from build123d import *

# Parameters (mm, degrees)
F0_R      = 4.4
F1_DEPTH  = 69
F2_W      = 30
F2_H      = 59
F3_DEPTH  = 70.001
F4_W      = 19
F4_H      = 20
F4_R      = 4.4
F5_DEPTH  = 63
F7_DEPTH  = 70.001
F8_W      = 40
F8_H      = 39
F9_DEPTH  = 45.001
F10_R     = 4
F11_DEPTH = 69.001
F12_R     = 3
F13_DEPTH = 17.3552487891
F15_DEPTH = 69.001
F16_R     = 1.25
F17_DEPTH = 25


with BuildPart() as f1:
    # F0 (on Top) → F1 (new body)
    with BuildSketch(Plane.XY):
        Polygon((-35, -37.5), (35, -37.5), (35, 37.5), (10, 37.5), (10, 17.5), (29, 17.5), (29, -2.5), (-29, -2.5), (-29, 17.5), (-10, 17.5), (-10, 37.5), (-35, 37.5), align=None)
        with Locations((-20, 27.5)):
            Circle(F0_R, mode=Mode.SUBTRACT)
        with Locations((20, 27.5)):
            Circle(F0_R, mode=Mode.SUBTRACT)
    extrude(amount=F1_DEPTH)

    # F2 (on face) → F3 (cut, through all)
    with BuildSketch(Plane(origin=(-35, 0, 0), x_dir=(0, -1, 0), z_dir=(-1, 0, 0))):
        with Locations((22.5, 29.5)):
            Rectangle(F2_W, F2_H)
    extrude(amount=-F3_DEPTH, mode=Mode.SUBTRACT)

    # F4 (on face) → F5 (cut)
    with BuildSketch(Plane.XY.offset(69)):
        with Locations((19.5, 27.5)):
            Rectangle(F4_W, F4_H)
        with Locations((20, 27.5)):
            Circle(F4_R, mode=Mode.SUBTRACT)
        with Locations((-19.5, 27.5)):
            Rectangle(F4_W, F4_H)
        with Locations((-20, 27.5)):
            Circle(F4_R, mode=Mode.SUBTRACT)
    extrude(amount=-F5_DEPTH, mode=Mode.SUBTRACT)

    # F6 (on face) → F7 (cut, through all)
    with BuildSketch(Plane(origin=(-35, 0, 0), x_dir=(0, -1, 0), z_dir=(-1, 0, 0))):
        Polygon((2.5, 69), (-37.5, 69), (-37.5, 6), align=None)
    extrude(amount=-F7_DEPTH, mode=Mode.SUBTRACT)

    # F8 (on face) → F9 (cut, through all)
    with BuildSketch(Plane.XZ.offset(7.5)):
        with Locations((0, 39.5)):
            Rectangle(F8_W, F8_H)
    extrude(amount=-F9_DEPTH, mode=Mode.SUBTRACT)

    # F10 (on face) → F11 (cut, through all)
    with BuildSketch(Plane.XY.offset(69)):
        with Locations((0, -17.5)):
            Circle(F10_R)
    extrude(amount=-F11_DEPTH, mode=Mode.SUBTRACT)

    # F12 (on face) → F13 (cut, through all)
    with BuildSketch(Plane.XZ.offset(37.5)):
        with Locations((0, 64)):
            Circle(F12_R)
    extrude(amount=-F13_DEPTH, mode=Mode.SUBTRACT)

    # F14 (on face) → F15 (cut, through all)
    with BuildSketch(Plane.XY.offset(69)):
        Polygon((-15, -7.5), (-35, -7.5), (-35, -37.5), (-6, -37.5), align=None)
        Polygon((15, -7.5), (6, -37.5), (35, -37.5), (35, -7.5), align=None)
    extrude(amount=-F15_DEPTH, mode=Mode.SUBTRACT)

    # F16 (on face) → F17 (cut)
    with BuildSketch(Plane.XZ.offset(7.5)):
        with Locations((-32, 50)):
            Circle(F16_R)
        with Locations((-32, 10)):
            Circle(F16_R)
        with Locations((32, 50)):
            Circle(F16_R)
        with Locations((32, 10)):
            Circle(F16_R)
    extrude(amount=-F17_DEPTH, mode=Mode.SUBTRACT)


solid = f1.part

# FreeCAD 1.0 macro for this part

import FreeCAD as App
import Part
import Sketcher


def add_polygon(sketch, points):
    """Adds a closed chain of lines whose ends are joined by coincident constraints."""
    first, n = sketch.GeometryCount, len(points)
    for a, b in zip(points, points[1:] + points[:1]):
        sketch.addGeometry(Part.LineSegment(App.Vector(*a, 0), App.Vector(*b, 0)), False)
    for i in range(n):
        sketch.addConstraint(Sketcher.Constraint("Coincident", first + i, 2, first + (i + 1) % n, 1))

doc = App.newDocument("Part")
body = doc.addObject("PartDesign::Body", "Body")

# Sketch on XY plane
sketch1 = doc.addObject("Sketcher::SketchObject", "Sketch")
body.addObject(sketch1)
sketch1.AttachmentSupport = (doc.XY_Plane, [""])
sketch1.MapMode = "FlatFace"
add_polygon(sketch1, [(-35, -37.5), (35, -37.5), (35, 37.5), (10, 37.5), (10, 17.5), (29, 17.5), (29, -2.5), (-29, -2.5), (-29, 17.5), (-10, 17.5), (-10, 37.5), (-35, 37.5)])  # lines 0-11
sketch1.addGeometry(Part.Circle(App.Vector(-20, 27.5, 0), App.Vector(0, 0, 1), 4.4), False)  # 12
sketch1.addGeometry(Part.Circle(App.Vector(20, 27.5, 0), App.Vector(0, 0, 1), 4.4), False)  # 13
sketch1.addConstraint([
    Sketcher.Constraint("Horizontal", 0),
    Sketcher.Constraint("Vertical", 1),
    Sketcher.Constraint("Horizontal", 2),
    Sketcher.Constraint("Vertical", 3),
    Sketcher.Constraint("Horizontal", 4),
    Sketcher.Constraint("Vertical", 5),
    Sketcher.Constraint("Horizontal", 6),
    Sketcher.Constraint("Vertical", 7),
    Sketcher.Constraint("Horizontal", 8),
    Sketcher.Constraint("Vertical", 9),
    Sketcher.Constraint("Horizontal", 10),
    Sketcher.Constraint("Vertical", 11),
    Sketcher.Constraint("Equal", 12, 13),
    Sketcher.Constraint("Symmetric", 0, 2, 10, 2, -1, 1),
    Sketcher.Constraint("Symmetric", 12, 3, 13, 3, -2),
    Sketcher.Constraint("Symmetric", 4, 2, 7, 2, -2),
    Sketcher.Constraint("Symmetric", 2, 2, 9, 2, -2),
    Sketcher.Constraint("Equal", 3, 5),
    Sketcher.Constraint("Diameter", 12, 8.8),
    Sketcher.Constraint("DistanceX", 0, 1, 0, 2, 70.0),
    Sketcher.Constraint("DistanceX", 2, 2, 2, 1, 25.0),
    Sketcher.Constraint("DistanceX", 4, 1, 4, 2, 19.0),
    Sketcher.Constraint("DistanceY", 1, 1, 1, 2, 75.0),
    Sketcher.Constraint("DistanceY", 3, 2, 3, 1, 20.0),
    Sketcher.Constraint("DistanceX", 12, 3, -1, 1, 20.0),
    Sketcher.Constraint("DistanceY", 0, 2, 13, 3, 65.0),
])
pad1 = doc.addObject("PartDesign::Pad", "Pad")
body.addObject(pad1)
pad1.Profile = sketch1
pad1.Length = 69

# Sketch on YZ plane
sketch2 = doc.addObject("Sketcher::SketchObject", "Sketch001")
body.addObject(sketch2)
sketch2.AttachmentSupport = (doc.YZ_Plane, [""])
sketch2.MapMode = "FlatFace"
sketch2.AttachmentOffset = App.Placement(App.Vector(0, 0, -35), App.Rotation())
add_polygon(sketch2, [(-8, 59), (-8, 0), (-38, 0), (-38, 59)])  # lines 0-3
sketch2.addConstraint([
    Sketcher.Constraint("Vertical", 0),
    Sketcher.Constraint("Horizontal", 1),
    Sketcher.Constraint("Vertical", 2),
    Sketcher.Constraint("Horizontal", 3),
    Sketcher.Constraint("PointOnObject", 0, 2, -1),
    Sketcher.Constraint("DistanceX", 1, 2, 1, 1, 30.0),
    Sketcher.Constraint("DistanceY", 0, 2, 0, 1, 59.0),
    Sketcher.Constraint("DistanceX", 0, 2, -1, 1, 7.5),
])
pocket1 = doc.addObject("PartDesign::Pocket", "Pocket")
body.addObject(pocket1)
pocket1.Profile = sketch2
pocket1.Type = "ThroughAll"
pocket1.Reversed = True

# Sketch on XY plane
sketch3 = doc.addObject("Sketcher::SketchObject", "Sketch002")
body.addObject(sketch3)
sketch3.AttachmentSupport = (doc.XY_Plane, [""])
sketch3.MapMode = "FlatFace"
sketch3.AttachmentOffset = App.Placement(App.Vector(0, 0, 69), App.Rotation())
add_polygon(sketch3, [(10, 37.5), (10, 17.5), (29, 17.5), (29, 37.5)])  # lines 0-3
sketch3.addGeometry(Part.Circle(App.Vector(20, 27.5, 0), App.Vector(0, 0, 1), 4.4), False)  # 4
add_polygon(sketch3, [(-29, 37.5), (-29, 17.5), (-10, 17.5), (-10, 37.5)])  # lines 5-8
sketch3.addGeometry(Part.Circle(App.Vector(-20, 27.5, 0), App.Vector(0, 0, 1), 4.4), False)  # 9
sketch3.addConstraint([
    Sketcher.Constraint("Vertical", 0),
    Sketcher.Constraint("Horizontal", 1),
    Sketcher.Constraint("Vertical", 2),
    Sketcher.Constraint("Horizontal", 3),
    Sketcher.Constraint("Vertical", 5),
    Sketcher.Constraint("Horizontal", 6),
    Sketcher.Constraint("Vertical", 7),
    Sketcher.Constraint("Horizontal", 8),
    Sketcher.Constraint("Equal", 4, 9),
    Sketcher.Constraint("Symmetric", 4, 3, 9, 3, -2),
    Sketcher.Constraint("Symmetric", 1, 2, 5, 2, -2),
    Sketcher.Constraint("Symmetric", 3, 2, 7, 2, -2),
    Sketcher.Constraint("Diameter", 4, 8.8),
    Sketcher.Constraint("DistanceX", 1, 1, 1, 2, 19.0),
    Sketcher.Constraint("DistanceY", 0, 2, 0, 1, 20.0),
    Sketcher.Constraint("DistanceX", -1, 1, 4, 3, 20.0),
    Sketcher.Constraint("DistanceX", -1, 1, 0, 2, 10.0),
    Sketcher.Constraint("DistanceY", 0, 2, 4, 3, 10.0),
    Sketcher.Constraint("DistanceY", -1, 1, 4, 3, 27.5),
])
pocket2 = doc.addObject("PartDesign::Pocket", "Pocket001")
body.addObject(pocket2)
pocket2.Profile = sketch3
pocket2.Length = 63

# Sketch on YZ plane
sketch4 = doc.addObject("Sketcher::SketchObject", "Sketch003")
body.addObject(sketch4)
sketch4.AttachmentSupport = (doc.YZ_Plane, [""])
sketch4.MapMode = "FlatFace"
sketch4.AttachmentOffset = App.Placement(App.Vector(0, 0, -35), App.Rotation())
add_polygon(sketch4, [(-2, 69), (38, 69), (38, 6)])  # lines 0-2
sketch4.addConstraint([
    Sketcher.Constraint("Horizontal", 0),
    Sketcher.Constraint("Vertical", 1),
    Sketcher.Constraint("DistanceX", 0, 1, 0, 2, 40.0),
    Sketcher.Constraint("DistanceY", 1, 2, 1, 1, 63.0),
    Sketcher.Constraint("DistanceY", -1, 1, 0, 2, 69.0),
    Sketcher.Constraint("DistanceX", -1, 1, 0, 2, 37.5),
])
pocket3 = doc.addObject("PartDesign::Pocket", "Pocket002")
body.addObject(pocket3)
pocket3.Profile = sketch4
pocket3.Type = "ThroughAll"
pocket3.Reversed = True

# Sketch on XZ plane
sketch5 = doc.addObject("Sketcher::SketchObject", "Sketch004")
body.addObject(sketch5)
sketch5.AttachmentSupport = (doc.XZ_Plane, [""])
sketch5.MapMode = "FlatFace"
sketch5.AttachmentOffset = App.Placement(App.Vector(0, 0, 7.5), App.Rotation())
add_polygon(sketch5, [(-20, 59), (-20, 20), (20, 20), (20, 59)])  # lines 0-3
sketch5.addConstraint([
    Sketcher.Constraint("Vertical", 0),
    Sketcher.Constraint("Horizontal", 1),
    Sketcher.Constraint("Vertical", 2),
    Sketcher.Constraint("Horizontal", 3),
    Sketcher.Constraint("DistanceX", 1, 1, 1, 2, 40.0),
    Sketcher.Constraint("DistanceY", 0, 2, 0, 1, 39.0),
    Sketcher.Constraint("DistanceX", 0, 2, -1, 1, 20.0),
    Sketcher.Constraint("DistanceY", -1, 1, 0, 2, 20.0),
])
pocket4 = doc.addObject("PartDesign::Pocket", "Pocket003")
body.addObject(pocket4)
pocket4.Profile = sketch5
pocket4.Type = "ThroughAll"

# Sketch on XY plane
sketch6 = doc.addObject("Sketcher::SketchObject", "Sketch005")
body.addObject(sketch6)
sketch6.AttachmentSupport = (doc.XY_Plane, [""])
sketch6.MapMode = "FlatFace"
sketch6.AttachmentOffset = App.Placement(App.Vector(0, 0, 69), App.Rotation())
sketch6.addGeometry(Part.Circle(App.Vector(0, -17.5, 0), App.Vector(0, 0, 1), 4), False)
sketch6.addConstraint([
    Sketcher.Constraint("PointOnObject", 0, 3, -2),
    Sketcher.Constraint("Diameter", 0, 8.0),
    Sketcher.Constraint("DistanceY", 0, 3, -1, 1, 17.5),
])
pocket5 = doc.addObject("PartDesign::Pocket", "Pocket004")
body.addObject(pocket5)
pocket5.Profile = sketch6
pocket5.Type = "ThroughAll"

# Sketch on XZ plane
sketch7 = doc.addObject("Sketcher::SketchObject", "Sketch006")
body.addObject(sketch7)
sketch7.AttachmentSupport = (doc.XZ_Plane, [""])
sketch7.MapMode = "FlatFace"
sketch7.AttachmentOffset = App.Placement(App.Vector(0, 0, 37.5), App.Rotation())
sketch7.addGeometry(Part.Circle(App.Vector(0, 64, 0), App.Vector(0, 0, 1), 3), False)
sketch7.addConstraint([
    Sketcher.Constraint("PointOnObject", 0, 3, -2),
    Sketcher.Constraint("Diameter", 0, 6.0),
    Sketcher.Constraint("DistanceY", -1, 1, 0, 3, 64.0),
])
pocket6 = doc.addObject("PartDesign::Pocket", "Pocket005")
body.addObject(pocket6)
pocket6.Profile = sketch7
pocket6.Length = 17.355249

# Sketch on XY plane
sketch8 = doc.addObject("Sketcher::SketchObject", "Sketch007")
body.addObject(sketch8)
sketch8.AttachmentSupport = (doc.XY_Plane, [""])
sketch8.MapMode = "FlatFace"
sketch8.AttachmentOffset = App.Placement(App.Vector(0, 0, 69), App.Rotation())
add_polygon(sketch8, [(-15, -8), (-35, -8), (-35, -38), (-6, -38)])  # lines 0-3
add_polygon(sketch8, [(15, -8), (6, -38), (35, -38), (35, -8)])  # lines 4-7
sketch8.addConstraint([
    Sketcher.Constraint("Horizontal", 0),
    Sketcher.Constraint("Vertical", 1),
    Sketcher.Constraint("Horizontal", 2),
    Sketcher.Constraint("Horizontal", 5),
    Sketcher.Constraint("Vertical", 6),
    Sketcher.Constraint("Horizontal", 7),
    Sketcher.Constraint("Symmetric", 2, 2, 4, 2, -2),
    Sketcher.Constraint("Symmetric", 0, 2, 6, 2, -2),
    Sketcher.Constraint("Equal", 0, 7),
    Sketcher.Constraint("DistanceX", 0, 2, 0, 1, 20.0),
    Sketcher.Constraint("DistanceX", 2, 1, 2, 2, 29.0),
    Sketcher.Constraint("DistanceY", 1, 2, 1, 1, 30.0),
    Sketcher.Constraint("DistanceX", 0, 2, -1, 1, 35.0),
    Sketcher.Constraint("DistanceY", 0, 2, -1, 1, 7.5),
])
pocket7 = doc.addObject("PartDesign::Pocket", "Pocket006")
body.addObject(pocket7)
pocket7.Profile = sketch8
pocket7.Type = "ThroughAll"

# Sketch on XZ plane
sketch9 = doc.addObject("Sketcher::SketchObject", "Sketch008")
body.addObject(sketch9)
sketch9.AttachmentSupport = (doc.XZ_Plane, [""])
sketch9.MapMode = "FlatFace"
sketch9.AttachmentOffset = App.Placement(App.Vector(0, 0, 7.5), App.Rotation())
sketch9.addGeometry([
    Part.Circle(App.Vector(-32, 50, 0), App.Vector(0, 0, 1), 1.2),
    Part.Circle(App.Vector(-32, 10, 0), App.Vector(0, 0, 1), 1.2),
    Part.Circle(App.Vector(32, 50, 0), App.Vector(0, 0, 1), 1.2),
    Part.Circle(App.Vector(32, 10, 0), App.Vector(0, 0, 1), 1.2),
], False)
sketch9.addConstraint([
    Sketcher.Constraint("Equal", 0, 1),
    Sketcher.Constraint("Equal", 1, 2),
    Sketcher.Constraint("Equal", 2, 3),
    Sketcher.Constraint("Symmetric", 0, 3, 2, 3, -2),
    Sketcher.Constraint("Symmetric", 1, 3, 3, 3, -2),
    Sketcher.Constraint("Vertical", 0, 3, 1, 3),
    Sketcher.Constraint("Diameter", 0, 2.5),
    Sketcher.Constraint("DistanceX", 0, 3, -1, 1, 32.0),
    Sketcher.Constraint("DistanceY", -1, 1, 0, 3, 50.0),
    Sketcher.Constraint("DistanceY", -1, 1, 1, 3, 10.0),
])
pocket8 = doc.addObject("PartDesign::Pocket", "Pocket007")
body.addObject(pocket8)
pocket8.Profile = sketch9
pocket8.Length = 25

doc.recompute()
